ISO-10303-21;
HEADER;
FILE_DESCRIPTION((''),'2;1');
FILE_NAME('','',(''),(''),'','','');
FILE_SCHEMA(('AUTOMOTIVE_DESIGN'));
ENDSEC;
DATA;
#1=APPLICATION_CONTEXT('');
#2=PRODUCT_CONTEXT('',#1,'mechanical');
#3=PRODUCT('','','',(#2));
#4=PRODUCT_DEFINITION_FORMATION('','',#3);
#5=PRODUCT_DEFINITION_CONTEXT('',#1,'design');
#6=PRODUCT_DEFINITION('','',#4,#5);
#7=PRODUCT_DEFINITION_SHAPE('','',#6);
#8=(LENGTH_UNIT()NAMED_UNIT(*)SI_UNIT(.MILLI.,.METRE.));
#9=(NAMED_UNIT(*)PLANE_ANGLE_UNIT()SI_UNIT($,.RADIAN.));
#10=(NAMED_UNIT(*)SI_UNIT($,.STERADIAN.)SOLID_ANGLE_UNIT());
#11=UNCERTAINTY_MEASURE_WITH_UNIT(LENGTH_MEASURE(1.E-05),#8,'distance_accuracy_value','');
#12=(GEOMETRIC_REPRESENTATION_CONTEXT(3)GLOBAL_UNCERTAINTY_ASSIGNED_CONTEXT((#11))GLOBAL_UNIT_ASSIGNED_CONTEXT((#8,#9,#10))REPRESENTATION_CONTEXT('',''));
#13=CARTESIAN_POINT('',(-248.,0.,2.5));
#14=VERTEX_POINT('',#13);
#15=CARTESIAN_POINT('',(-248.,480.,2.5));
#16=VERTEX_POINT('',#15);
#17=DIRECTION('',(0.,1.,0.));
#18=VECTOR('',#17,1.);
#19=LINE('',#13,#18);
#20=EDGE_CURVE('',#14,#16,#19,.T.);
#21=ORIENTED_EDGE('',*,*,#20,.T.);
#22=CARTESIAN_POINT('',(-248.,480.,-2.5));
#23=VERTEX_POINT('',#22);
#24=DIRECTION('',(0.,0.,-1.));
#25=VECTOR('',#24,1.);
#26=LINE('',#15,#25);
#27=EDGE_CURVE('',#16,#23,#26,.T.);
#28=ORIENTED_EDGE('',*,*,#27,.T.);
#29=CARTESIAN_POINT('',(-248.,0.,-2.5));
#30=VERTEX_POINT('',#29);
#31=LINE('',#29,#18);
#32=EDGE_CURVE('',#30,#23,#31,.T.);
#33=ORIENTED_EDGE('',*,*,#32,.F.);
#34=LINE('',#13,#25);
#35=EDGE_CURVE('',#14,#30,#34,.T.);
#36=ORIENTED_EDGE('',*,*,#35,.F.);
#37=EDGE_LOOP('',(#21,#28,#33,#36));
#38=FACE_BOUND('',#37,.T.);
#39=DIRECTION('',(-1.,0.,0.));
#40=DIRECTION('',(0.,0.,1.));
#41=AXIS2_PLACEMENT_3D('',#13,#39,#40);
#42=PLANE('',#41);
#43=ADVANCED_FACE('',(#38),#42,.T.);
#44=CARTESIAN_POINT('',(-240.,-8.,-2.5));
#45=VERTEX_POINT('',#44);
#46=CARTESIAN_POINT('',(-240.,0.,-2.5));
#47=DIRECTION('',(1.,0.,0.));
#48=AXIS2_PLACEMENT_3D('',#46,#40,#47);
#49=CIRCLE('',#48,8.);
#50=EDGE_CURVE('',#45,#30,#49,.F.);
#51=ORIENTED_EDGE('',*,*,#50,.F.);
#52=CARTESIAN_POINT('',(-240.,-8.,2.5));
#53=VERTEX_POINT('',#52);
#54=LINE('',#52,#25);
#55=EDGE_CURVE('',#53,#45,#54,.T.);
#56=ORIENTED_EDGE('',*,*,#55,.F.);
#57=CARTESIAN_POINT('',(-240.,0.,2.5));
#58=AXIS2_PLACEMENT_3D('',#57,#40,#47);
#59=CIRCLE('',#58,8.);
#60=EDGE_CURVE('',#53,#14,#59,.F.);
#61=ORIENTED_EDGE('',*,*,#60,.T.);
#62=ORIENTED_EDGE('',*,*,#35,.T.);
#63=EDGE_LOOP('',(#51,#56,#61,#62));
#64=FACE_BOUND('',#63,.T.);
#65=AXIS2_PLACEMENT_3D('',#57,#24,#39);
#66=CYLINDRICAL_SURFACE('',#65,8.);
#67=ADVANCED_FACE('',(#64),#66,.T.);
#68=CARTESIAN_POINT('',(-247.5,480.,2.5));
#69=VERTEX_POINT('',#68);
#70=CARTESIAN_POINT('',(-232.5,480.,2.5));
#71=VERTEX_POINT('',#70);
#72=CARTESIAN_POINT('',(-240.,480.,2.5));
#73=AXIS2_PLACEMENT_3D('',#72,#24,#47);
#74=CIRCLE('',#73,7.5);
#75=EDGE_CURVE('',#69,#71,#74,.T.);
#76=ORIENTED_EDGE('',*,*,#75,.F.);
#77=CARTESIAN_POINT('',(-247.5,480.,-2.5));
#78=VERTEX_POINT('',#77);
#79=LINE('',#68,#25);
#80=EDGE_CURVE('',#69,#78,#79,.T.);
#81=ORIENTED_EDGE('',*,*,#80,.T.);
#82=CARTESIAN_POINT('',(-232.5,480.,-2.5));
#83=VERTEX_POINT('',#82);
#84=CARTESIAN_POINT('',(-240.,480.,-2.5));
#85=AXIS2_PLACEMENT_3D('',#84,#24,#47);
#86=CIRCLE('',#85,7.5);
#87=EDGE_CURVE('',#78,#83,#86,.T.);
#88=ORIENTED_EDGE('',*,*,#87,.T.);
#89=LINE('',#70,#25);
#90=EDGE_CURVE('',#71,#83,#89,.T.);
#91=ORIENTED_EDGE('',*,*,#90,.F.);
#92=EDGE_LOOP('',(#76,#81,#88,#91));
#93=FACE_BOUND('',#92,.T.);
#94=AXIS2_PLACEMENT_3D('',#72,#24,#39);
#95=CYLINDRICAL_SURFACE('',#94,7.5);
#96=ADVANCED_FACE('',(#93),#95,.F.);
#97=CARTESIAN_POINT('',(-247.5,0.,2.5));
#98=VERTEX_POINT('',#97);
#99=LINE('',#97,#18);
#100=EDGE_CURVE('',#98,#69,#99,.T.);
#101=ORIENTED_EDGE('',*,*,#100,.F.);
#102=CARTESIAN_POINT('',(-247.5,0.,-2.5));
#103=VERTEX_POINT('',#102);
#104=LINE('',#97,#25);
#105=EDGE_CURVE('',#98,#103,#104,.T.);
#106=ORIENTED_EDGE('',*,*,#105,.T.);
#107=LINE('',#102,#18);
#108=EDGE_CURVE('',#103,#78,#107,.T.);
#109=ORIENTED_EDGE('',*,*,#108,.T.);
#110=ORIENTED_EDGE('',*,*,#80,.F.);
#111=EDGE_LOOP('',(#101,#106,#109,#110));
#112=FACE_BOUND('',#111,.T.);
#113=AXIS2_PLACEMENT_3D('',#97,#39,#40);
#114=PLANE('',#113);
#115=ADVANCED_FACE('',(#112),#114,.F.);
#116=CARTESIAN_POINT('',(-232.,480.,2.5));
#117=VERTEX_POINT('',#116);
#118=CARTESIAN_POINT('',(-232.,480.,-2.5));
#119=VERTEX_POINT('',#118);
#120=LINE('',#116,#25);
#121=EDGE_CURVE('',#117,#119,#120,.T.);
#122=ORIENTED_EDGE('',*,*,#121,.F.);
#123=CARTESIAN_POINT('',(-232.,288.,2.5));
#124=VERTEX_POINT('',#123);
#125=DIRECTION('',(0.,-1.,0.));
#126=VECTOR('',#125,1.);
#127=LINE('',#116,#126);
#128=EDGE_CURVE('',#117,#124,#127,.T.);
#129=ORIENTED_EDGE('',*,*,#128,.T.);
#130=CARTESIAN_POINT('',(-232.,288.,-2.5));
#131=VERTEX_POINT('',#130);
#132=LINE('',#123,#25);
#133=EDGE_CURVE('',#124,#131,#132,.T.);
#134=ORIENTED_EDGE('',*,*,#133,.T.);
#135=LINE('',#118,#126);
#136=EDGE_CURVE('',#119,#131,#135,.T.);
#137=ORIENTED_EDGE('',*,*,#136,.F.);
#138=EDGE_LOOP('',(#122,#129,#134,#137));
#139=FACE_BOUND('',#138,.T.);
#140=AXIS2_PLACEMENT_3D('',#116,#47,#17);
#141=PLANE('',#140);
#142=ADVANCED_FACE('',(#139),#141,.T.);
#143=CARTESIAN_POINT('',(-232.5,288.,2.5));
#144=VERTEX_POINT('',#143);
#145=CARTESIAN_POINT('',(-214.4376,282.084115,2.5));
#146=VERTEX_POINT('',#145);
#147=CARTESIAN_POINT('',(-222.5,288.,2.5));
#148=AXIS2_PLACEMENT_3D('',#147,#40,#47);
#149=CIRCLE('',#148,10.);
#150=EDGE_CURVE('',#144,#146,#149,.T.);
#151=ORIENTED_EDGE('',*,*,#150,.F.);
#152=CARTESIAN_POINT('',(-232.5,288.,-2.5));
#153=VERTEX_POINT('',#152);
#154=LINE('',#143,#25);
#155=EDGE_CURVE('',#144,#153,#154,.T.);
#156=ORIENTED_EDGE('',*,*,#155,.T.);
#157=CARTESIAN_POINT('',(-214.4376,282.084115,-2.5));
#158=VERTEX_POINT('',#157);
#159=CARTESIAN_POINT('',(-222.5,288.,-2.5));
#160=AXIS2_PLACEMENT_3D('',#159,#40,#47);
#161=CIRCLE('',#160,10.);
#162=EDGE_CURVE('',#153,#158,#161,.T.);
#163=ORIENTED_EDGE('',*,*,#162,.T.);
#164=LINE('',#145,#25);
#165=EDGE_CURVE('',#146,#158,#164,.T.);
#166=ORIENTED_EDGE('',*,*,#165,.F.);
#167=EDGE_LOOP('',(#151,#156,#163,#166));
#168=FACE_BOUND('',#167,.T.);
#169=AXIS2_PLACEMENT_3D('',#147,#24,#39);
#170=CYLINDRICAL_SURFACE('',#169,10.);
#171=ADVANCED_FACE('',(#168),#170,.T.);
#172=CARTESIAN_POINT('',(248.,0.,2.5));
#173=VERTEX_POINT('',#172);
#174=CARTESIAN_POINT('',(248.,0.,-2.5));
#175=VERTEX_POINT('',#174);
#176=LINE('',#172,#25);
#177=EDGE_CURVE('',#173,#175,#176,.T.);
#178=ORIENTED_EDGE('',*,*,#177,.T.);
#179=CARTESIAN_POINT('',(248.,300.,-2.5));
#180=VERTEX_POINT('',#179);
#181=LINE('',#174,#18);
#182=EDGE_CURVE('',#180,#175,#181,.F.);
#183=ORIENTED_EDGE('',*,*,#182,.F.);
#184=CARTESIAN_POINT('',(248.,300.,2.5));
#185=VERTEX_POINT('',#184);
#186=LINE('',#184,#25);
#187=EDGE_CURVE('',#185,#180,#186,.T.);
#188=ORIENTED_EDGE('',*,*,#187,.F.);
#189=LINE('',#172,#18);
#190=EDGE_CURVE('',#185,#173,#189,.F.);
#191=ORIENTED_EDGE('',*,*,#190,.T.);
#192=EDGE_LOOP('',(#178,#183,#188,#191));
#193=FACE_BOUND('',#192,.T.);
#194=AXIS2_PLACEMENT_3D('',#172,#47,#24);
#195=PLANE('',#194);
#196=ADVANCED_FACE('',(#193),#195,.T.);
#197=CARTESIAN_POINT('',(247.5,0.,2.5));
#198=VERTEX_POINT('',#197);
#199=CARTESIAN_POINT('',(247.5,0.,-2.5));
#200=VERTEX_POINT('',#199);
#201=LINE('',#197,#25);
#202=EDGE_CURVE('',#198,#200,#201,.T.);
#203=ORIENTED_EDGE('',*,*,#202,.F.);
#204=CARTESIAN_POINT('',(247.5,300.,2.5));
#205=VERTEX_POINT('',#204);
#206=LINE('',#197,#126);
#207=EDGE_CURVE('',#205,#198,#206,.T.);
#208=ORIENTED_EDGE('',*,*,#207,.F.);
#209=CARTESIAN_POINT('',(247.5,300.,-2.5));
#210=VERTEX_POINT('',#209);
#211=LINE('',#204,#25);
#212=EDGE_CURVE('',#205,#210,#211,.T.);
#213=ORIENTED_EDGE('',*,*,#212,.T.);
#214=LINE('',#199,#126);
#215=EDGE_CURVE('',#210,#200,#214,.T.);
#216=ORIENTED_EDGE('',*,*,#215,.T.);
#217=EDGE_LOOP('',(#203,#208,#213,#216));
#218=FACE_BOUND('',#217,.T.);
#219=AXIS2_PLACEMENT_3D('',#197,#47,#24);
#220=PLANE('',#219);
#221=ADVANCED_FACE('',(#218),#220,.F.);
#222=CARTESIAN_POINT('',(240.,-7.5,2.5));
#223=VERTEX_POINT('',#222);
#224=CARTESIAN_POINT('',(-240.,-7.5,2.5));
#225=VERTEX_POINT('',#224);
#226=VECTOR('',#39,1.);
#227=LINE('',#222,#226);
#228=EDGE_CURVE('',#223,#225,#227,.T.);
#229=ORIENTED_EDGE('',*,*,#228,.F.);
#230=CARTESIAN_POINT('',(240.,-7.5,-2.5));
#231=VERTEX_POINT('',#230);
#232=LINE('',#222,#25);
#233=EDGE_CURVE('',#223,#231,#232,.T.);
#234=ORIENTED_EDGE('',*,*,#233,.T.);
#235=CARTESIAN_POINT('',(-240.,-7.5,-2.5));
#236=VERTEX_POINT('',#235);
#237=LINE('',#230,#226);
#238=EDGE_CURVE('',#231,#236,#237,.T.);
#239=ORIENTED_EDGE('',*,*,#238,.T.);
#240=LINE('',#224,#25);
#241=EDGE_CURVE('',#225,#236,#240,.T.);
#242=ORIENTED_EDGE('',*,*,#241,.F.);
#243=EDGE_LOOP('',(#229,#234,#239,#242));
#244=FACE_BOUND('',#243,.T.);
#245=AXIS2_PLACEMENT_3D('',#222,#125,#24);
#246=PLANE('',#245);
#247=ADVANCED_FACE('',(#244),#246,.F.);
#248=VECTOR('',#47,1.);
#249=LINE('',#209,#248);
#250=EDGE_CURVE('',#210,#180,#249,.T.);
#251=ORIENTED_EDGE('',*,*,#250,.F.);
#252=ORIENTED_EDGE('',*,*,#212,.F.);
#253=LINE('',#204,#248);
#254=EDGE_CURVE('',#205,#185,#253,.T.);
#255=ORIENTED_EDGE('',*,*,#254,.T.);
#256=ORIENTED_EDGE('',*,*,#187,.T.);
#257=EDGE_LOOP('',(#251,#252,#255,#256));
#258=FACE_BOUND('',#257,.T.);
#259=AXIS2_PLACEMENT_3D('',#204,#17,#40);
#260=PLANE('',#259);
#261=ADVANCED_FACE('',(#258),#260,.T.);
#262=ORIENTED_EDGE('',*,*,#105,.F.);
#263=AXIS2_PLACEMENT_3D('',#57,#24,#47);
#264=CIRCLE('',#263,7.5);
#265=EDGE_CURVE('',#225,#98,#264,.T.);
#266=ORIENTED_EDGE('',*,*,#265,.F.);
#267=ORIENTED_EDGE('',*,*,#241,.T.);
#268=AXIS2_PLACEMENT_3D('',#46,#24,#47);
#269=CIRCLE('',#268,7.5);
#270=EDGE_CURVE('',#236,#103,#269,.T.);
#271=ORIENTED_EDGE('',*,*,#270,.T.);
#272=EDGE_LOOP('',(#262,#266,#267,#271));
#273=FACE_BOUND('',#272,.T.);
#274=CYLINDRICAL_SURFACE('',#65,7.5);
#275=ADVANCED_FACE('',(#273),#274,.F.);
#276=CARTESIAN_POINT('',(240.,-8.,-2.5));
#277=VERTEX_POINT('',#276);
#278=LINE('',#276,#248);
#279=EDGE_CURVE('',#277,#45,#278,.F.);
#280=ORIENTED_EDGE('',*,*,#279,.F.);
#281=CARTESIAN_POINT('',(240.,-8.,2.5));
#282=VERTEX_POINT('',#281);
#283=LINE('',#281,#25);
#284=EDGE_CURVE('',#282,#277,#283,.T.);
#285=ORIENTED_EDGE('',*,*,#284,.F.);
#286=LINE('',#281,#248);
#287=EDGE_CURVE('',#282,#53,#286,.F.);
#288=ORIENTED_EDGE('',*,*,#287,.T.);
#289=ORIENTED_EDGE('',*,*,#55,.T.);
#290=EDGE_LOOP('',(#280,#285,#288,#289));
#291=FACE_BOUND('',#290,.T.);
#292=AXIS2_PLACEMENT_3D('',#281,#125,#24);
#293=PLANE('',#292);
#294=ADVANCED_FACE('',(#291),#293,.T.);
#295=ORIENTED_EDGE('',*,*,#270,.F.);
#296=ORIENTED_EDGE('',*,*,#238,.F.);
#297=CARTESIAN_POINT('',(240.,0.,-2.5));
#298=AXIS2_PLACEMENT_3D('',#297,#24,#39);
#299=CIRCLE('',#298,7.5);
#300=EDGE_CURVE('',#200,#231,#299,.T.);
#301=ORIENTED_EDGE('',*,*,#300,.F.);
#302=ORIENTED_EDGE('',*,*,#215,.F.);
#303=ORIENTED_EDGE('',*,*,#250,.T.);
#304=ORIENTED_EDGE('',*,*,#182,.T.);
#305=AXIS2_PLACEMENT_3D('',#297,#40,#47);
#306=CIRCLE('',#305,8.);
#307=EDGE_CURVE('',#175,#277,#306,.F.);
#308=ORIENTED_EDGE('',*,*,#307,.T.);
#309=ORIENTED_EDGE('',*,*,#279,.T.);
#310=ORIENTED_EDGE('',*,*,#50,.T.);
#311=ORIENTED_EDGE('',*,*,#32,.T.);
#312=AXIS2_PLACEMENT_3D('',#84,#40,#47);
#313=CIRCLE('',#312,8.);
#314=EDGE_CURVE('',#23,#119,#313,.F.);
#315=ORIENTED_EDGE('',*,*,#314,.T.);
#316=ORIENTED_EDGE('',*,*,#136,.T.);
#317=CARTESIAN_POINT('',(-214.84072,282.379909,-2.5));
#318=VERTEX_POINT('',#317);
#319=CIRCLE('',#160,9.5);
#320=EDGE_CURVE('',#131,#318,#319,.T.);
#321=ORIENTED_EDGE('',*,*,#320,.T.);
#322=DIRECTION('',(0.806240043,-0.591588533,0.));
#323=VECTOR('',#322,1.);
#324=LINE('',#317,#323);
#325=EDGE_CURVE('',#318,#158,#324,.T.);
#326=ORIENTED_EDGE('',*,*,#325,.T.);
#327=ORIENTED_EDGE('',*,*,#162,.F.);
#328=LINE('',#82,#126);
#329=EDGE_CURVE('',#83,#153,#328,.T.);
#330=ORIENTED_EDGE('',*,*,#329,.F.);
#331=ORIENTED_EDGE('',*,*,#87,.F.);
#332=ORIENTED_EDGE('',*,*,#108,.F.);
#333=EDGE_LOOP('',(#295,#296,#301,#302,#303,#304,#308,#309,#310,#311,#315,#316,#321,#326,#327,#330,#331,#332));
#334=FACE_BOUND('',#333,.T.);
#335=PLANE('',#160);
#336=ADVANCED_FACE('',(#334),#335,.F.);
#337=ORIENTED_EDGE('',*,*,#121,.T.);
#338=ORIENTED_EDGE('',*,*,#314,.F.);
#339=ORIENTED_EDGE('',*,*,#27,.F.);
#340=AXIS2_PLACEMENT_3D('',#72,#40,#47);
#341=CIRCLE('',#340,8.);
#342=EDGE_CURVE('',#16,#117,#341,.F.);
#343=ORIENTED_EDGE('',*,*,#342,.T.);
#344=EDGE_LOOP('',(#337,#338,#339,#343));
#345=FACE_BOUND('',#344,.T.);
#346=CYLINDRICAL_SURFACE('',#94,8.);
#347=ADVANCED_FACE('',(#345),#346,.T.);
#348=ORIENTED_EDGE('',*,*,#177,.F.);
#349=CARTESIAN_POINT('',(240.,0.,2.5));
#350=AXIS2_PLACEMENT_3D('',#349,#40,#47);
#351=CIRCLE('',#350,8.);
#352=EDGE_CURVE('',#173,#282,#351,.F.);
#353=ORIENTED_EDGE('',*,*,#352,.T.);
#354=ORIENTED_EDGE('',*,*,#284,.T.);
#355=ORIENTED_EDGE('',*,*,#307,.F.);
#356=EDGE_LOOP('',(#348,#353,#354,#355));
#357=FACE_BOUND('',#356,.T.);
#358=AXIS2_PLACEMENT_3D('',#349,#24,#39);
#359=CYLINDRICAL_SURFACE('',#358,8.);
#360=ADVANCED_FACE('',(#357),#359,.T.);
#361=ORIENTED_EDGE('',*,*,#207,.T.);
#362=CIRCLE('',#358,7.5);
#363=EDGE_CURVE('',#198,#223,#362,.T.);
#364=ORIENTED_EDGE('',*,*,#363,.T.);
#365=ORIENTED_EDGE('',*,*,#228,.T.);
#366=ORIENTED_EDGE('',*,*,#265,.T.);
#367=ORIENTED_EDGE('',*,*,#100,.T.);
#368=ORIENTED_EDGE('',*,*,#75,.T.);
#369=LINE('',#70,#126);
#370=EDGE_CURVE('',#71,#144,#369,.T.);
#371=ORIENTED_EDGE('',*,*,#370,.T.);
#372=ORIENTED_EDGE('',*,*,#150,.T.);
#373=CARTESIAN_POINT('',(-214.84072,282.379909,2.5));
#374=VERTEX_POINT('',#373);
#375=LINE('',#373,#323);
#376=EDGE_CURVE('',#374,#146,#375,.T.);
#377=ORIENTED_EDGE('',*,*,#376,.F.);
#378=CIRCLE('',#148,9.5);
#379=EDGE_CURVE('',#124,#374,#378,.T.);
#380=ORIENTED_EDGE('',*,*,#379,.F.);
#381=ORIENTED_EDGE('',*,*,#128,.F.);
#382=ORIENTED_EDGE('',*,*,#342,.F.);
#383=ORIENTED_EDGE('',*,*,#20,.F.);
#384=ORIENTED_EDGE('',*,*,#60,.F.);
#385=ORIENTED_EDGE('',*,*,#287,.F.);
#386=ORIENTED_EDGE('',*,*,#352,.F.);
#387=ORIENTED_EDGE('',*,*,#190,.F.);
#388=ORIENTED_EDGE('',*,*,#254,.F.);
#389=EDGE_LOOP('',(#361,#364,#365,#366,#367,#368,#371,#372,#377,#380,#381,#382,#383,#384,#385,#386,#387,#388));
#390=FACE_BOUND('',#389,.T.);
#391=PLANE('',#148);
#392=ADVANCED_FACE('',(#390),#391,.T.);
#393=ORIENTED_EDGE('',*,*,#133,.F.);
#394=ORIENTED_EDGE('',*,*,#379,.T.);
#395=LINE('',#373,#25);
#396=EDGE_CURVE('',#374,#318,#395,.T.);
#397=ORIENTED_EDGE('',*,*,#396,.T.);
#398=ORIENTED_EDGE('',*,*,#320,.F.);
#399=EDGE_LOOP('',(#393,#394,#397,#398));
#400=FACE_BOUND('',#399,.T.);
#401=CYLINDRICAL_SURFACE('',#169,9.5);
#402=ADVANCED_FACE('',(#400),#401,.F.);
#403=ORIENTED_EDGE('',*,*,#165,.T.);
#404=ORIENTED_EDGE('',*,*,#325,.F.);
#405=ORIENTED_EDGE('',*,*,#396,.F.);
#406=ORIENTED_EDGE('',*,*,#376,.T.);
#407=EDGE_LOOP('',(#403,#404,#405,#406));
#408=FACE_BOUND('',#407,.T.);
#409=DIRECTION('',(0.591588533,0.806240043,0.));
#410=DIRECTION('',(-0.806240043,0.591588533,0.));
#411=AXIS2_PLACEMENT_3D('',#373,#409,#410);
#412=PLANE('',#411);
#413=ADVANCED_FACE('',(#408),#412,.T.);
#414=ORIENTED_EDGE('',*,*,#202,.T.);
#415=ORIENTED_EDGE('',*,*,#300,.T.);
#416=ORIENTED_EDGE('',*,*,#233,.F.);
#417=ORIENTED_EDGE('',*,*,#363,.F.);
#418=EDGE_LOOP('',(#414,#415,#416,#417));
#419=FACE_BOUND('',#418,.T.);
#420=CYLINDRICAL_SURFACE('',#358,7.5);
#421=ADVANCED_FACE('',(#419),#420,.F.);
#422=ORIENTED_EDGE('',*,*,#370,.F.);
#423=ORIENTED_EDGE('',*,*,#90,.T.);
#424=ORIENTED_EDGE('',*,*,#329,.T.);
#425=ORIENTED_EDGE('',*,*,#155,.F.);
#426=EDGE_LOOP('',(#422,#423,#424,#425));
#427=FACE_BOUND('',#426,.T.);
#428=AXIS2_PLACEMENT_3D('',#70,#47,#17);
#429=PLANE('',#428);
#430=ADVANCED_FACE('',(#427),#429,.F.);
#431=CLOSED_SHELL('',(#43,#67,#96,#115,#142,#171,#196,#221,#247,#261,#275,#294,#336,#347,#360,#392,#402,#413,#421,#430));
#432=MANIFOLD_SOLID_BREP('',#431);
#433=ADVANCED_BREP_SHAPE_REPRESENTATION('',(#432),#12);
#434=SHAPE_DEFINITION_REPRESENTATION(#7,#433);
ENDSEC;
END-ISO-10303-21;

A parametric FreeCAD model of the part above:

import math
import FreeCAD as App
import Part
import Sketcher

V = App.Vector

doc = App.newDocument("Part")
body = doc.addObject("PartDesign::Body", "Body")

sketch1 = body.newObject("Sketcher::SketchObject", "Sketch")
sketch1.AttachmentSupport = (doc.getObject("XY_Plane"), [""])
sketch1.MapMode = "FlatFace"
sketch1.addGeometry([
    Part.LineSegment(V(247.5, 300, 0), V(247.5, 0, 0)),
    Part.ArcOfCircle(Part.Circle(V(240, 0, 0), V(0, 0, 1), 7.5), math.radians(-90), math.radians(0)),
    Part.LineSegment(V(240, -7.5, 0), V(-240, -7.5, 0)),
    Part.ArcOfCircle(Part.Circle(V(-240, 0, 0), V(0, 0, 1), 7.5), math.radians(180), math.radians(270)),
    Part.LineSegment(V(-247.5, 0, 0), V(-247.5, 480, 0)),
    Part.ArcOfCircle(Part.Circle(V(-240, 480, 0), V(0, 0, 1), 7.5), math.radians(0), math.radians(180)),
    Part.LineSegment(V(-232.5, 480, 0), V(-232.5, 288, 0)),
    Part.ArcOfCircle(Part.Circle(V(-222.5, 288, 0), V(0, 0, 1), 10), math.radians(180), math.radians(324)),
    Part.LineSegment(V(-214.44, 282.08, 0), V(-214.84, 282.38, 0)),
    Part.ArcOfCircle(Part.Circle(V(-222.5, 288, 0), V(0, 0, 1), 9.5), math.radians(180), math.radians(324)),
    Part.LineSegment(V(-232, 288, 0), V(-232, 480, 0)),
    Part.ArcOfCircle(Part.Circle(V(-240, 480, 0), V(0, 0, 1), 8), math.radians(0), math.radians(180)),
    Part.LineSegment(V(-248, 480, 0), V(-248, 0, 0)),
    Part.ArcOfCircle(Part.Circle(V(-240, 0, 0), V(0, 0, 1), 8), math.radians(-180), math.radians(-90)),
    Part.LineSegment(V(-240, -8, 0), V(240, -8, 0)),
    Part.ArcOfCircle(Part.Circle(V(240, 0, 0), V(0, 0, 1), 8), math.radians(-90), math.radians(0)),
    Part.LineSegment(V(248, 0, 0), V(248, 300, 0)),
    Part.LineSegment(V(248, 300, 0), V(247.5, 300, 0)),
], False)
sketch1.addConstraint([
    Sketcher.Constraint("Tangent", 0, 2, 1, 2),
    Sketcher.Constraint("Tangent", 1, 1, 2, 1),
    Sketcher.Constraint("Tangent", 2, 2, 3, 2),
    Sketcher.Constraint("Tangent", 3, 1, 4, 1),
    Sketcher.Constraint("Tangent", 4, 2, 5, 2),
    Sketcher.Constraint("Tangent", 5, 1, 6, 1),
    Sketcher.Constraint("Tangent", 6, 2, 7, 1),
    Sketcher.Constraint("Coincident", 7, 2, 8, 1),
    Sketcher.Constraint("Coincident", 8, 2, 9, 2),
    Sketcher.Constraint("Tangent", 9, 1, 10, 1),
    Sketcher.Constraint("Tangent", 10, 2, 11, 1),
    Sketcher.Constraint("Tangent", 11, 2, 12, 1),
    Sketcher.Constraint("Tangent", 12, 2, 13, 1),
    Sketcher.Constraint("Tangent", 13, 2, 14, 1),
    Sketcher.Constraint("Tangent", 14, 2, 15, 1),
    Sketcher.Constraint("Tangent", 15, 2, 16, 1),
    Sketcher.Constraint("Coincident", 16, 2, 17, 1),
    Sketcher.Constraint("Coincident", 17, 2, 0, 1),
    Sketcher.Constraint("Vertical", 0),
    Sketcher.Constraint("Horizontal", 2),
    Sketcher.Constraint("Vertical", 4),
    Sketcher.Constraint("Vertical", 6),
    Sketcher.Constraint("Vertical", 10),
    Sketcher.Constraint("Vertical", 12),
    Sketcher.Constraint("Horizontal", 14),
    Sketcher.Constraint("Vertical", 16),
    Sketcher.Constraint("Horizontal", 17),
    Sketcher.Constraint("Coincident", 9, 3, 7, 3),
    Sketcher.Constraint("Coincident", 11, 3, 5, 3),
    Sketcher.Constraint("Coincident", 13, 3, 3, 3),
    Sketcher.Constraint("Coincident", 15, 3, 1, 3),
    Sketcher.Constraint("Equal", 1, 3),
    Sketcher.Constraint("Equal", 3, 5),
    Sketcher.Constraint("Symmetric", 1, 3, 3, 3, -1, 1),
    Sketcher.Constraint("Equal", 14, 4),
    Sketcher.Constraint("Radius", 7, 10.0),
    Sketcher.Constraint("Radius", 11, 8.0),
    Sketcher.Constraint("Radius", 1, 7.5),
    Sketcher.Constraint("DistanceX", 2, 2, 2, 1, 480.0),
    Sketcher.Constraint("DistanceY", 0, 2, 0, 1, 300.0),
    Sketcher.Constraint("DistanceY", 6, 2, 6, 1, 192.0),
    Sketcher.Constraint("DistanceX", 7, 2, -1, 1, 214.4376),
    Sketcher.Constraint("DistanceX", 8, 2, -1, 1, 214.84072),
])
pad1 = body.newObject("PartDesign::Pad", "Pad")
pad1.Profile = sketch1
pad1.Length = 5
pad1.Midplane = True

doc.recompute()
